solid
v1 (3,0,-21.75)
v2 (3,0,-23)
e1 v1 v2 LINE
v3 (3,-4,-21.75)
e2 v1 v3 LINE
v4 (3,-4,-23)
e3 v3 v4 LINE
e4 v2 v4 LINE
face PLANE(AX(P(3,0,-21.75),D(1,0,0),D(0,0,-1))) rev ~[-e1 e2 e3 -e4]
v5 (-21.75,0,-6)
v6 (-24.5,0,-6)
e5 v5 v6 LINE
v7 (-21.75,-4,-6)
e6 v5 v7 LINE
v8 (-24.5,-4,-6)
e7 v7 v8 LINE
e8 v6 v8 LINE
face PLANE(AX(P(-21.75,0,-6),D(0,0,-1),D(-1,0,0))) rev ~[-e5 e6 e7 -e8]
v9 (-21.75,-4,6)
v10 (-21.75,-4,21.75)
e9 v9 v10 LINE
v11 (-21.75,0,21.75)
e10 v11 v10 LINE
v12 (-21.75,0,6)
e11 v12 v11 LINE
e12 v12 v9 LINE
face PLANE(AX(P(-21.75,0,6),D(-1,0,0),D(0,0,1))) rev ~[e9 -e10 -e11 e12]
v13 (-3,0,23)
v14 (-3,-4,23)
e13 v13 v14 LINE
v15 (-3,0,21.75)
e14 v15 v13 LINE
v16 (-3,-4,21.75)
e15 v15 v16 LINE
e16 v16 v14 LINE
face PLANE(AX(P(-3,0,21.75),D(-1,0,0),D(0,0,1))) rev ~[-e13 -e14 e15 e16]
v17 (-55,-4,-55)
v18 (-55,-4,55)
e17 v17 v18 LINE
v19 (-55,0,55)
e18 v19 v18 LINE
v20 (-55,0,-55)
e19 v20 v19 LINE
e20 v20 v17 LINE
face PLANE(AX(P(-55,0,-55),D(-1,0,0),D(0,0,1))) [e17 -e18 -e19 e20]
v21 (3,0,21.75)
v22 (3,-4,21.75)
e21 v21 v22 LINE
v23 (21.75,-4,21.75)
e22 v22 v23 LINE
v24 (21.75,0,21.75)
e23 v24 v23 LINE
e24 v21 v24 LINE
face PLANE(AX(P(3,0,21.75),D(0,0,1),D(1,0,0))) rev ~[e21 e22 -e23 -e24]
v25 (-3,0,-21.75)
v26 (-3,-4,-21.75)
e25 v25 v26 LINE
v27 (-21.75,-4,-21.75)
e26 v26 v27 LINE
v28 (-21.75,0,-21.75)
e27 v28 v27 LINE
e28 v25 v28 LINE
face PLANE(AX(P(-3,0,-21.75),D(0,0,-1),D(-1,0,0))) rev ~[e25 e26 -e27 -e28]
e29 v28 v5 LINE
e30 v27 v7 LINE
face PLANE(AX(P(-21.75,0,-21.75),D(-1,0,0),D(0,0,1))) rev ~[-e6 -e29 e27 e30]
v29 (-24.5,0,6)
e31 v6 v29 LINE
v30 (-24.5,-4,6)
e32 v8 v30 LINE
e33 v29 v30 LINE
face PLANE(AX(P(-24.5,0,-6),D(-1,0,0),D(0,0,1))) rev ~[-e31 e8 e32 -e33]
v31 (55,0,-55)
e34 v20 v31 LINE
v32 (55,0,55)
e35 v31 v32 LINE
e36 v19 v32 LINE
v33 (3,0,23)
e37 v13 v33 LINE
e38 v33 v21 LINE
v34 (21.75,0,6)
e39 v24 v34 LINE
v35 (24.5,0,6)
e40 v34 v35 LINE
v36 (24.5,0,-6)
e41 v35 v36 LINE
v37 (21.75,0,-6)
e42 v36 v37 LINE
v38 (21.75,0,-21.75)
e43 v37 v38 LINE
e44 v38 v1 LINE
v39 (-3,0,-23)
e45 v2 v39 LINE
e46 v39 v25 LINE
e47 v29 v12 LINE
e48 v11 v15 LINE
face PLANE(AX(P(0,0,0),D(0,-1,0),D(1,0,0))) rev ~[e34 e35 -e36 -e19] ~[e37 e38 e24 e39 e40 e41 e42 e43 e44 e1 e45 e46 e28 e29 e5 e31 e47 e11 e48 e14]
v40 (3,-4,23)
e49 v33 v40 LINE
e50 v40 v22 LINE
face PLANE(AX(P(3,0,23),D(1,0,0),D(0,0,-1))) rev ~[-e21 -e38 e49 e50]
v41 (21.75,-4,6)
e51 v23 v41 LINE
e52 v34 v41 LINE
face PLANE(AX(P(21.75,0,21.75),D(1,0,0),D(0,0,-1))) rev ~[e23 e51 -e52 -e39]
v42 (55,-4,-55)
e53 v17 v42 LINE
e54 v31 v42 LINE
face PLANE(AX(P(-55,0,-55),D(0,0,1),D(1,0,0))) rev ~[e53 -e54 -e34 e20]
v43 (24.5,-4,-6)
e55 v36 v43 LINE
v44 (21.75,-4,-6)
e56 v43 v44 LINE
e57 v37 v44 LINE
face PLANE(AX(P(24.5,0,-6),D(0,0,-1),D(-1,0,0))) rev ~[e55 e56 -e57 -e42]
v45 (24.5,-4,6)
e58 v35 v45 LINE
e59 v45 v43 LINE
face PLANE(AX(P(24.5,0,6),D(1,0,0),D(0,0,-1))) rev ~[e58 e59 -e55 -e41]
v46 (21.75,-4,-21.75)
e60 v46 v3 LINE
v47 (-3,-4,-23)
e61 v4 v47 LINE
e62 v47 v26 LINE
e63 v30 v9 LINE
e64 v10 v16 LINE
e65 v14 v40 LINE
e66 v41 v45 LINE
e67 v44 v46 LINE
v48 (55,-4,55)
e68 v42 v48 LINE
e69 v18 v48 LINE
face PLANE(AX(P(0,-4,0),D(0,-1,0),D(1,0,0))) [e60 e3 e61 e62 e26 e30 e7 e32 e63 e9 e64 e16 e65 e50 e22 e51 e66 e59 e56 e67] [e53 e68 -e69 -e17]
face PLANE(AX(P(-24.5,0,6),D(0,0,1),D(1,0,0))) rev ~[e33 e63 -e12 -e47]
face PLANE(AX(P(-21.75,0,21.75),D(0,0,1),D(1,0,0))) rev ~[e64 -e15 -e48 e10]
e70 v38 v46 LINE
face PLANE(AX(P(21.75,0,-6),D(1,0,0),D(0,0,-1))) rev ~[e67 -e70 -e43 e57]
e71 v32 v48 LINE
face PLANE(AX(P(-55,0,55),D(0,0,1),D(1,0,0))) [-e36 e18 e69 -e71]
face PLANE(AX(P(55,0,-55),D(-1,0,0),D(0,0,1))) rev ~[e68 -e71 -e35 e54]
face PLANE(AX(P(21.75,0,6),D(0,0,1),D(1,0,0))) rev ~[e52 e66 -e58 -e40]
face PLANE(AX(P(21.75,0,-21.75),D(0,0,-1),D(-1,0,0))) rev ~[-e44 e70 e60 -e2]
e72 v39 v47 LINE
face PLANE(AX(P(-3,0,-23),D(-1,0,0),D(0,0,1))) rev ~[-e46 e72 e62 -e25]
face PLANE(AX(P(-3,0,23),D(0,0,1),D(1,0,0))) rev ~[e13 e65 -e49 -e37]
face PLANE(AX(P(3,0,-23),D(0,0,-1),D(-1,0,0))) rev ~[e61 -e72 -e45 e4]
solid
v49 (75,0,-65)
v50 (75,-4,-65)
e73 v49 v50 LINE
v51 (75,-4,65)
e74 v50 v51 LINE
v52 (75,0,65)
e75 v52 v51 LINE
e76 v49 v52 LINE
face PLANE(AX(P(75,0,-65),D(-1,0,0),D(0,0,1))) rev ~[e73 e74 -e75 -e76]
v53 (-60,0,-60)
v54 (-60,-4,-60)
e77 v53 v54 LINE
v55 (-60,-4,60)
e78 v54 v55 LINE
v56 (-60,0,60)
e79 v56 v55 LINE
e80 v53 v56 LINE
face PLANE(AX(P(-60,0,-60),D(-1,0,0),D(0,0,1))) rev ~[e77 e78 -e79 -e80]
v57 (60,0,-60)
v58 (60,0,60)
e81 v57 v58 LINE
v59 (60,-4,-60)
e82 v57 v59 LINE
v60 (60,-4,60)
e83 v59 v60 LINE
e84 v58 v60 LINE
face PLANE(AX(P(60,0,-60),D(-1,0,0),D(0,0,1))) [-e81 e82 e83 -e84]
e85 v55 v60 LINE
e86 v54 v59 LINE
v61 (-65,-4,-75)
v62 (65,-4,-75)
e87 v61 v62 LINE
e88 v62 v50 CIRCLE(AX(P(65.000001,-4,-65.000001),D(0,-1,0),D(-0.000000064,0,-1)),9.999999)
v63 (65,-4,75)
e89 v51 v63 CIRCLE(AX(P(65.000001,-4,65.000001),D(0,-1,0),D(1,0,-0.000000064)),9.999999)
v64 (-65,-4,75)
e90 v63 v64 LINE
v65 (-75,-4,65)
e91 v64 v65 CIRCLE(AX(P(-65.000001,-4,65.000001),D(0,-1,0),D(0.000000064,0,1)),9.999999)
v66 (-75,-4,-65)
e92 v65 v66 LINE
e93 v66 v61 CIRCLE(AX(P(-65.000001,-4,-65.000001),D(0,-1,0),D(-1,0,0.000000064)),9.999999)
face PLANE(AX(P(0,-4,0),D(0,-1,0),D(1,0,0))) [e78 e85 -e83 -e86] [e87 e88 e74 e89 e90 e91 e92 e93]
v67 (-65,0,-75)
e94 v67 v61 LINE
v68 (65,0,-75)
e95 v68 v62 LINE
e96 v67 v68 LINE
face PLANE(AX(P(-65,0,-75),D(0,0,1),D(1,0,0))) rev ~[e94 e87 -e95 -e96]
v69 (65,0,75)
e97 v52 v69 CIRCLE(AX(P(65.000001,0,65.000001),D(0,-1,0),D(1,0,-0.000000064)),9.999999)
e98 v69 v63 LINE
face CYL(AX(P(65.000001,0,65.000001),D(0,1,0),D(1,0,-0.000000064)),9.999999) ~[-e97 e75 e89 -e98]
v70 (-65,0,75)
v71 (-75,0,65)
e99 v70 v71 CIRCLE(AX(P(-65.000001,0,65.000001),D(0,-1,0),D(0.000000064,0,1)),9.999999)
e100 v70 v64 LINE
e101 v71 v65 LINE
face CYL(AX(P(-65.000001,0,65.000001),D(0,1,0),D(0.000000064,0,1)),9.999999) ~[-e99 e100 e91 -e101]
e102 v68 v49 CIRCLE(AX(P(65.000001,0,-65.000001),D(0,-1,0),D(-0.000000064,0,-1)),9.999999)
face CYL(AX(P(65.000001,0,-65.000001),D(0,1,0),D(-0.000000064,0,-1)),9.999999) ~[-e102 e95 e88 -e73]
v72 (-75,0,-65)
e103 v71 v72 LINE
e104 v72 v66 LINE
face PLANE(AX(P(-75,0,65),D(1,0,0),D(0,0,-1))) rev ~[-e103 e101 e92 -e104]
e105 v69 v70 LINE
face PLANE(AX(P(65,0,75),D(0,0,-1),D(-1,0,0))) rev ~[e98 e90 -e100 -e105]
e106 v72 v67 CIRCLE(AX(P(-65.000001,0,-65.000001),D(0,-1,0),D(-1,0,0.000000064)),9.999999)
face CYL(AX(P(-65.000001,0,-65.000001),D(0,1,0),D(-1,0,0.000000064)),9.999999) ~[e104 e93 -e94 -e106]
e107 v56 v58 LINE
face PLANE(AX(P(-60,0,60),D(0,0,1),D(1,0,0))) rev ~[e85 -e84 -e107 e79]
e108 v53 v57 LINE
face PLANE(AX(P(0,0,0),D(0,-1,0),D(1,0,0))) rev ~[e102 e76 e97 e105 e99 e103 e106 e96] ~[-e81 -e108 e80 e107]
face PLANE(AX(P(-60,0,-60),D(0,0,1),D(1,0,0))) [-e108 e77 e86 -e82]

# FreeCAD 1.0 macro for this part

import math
import FreeCAD as App
import Part
import Sketcher

doc = App.newDocument("Part")
body = doc.addObject("PartDesign::Body", "Body")
body.AllowCompound = True

sketch1 = body.newObject("Sketcher::SketchObject", "Sketch")
sketch1.AttachmentSupport = (doc.getObject("XZ_Plane"), [""])
sketch1.MapMode = "FlatFace"
sketch1.addGeometry([
    Part.LineSegment(App.Vector(-65, -75, 0), App.Vector(65, -75, 0)),
    Part.ArcOfCircle(Part.Circle(App.Vector(65, -65, 0), App.Vector(0, 0, 1), 10), math.radians(-90), math.radians(0)),
    Part.LineSegment(App.Vector(75, -65, 0), App.Vector(75, 65, 0)),
    Part.ArcOfCircle(Part.Circle(App.Vector(65, 65, 0), App.Vector(0, 0, 1), 10), math.radians(0), math.radians(90)),
    Part.LineSegment(App.Vector(65, 75, 0), App.Vector(-65, 75, 0)),
    Part.ArcOfCircle(Part.Circle(App.Vector(-65, 65, 0), App.Vector(0, 0, 1), 10), math.radians(90), math.radians(180)),
    Part.LineSegment(App.Vector(-75, 65, 0), App.Vector(-75, -65, 0)),
    Part.ArcOfCircle(Part.Circle(App.Vector(-65, -65, 0), App.Vector(0, 0, 1), 10), math.radians(180), math.radians(270)),
    Part.LineSegment(App.Vector(60, -60, 0), App.Vector(-60, -60, 0)),
    Part.LineSegment(App.Vector(-60, -60, 0), App.Vector(-60, 60, 0)),
    Part.LineSegment(App.Vector(-60, 60, 0), App.Vector(60, 60, 0)),
    Part.LineSegment(App.Vector(60, 60, 0), App.Vector(60, -60, 0)),
    Part.LineSegment(App.Vector(-55, 55, 0), App.Vector(-55, -55, 0)),
    Part.LineSegment(App.Vector(-55, -55, 0), App.Vector(55, -55, 0)),
    Part.LineSegment(App.Vector(55, -55, 0), App.Vector(55, 55, 0)),
    Part.LineSegment(App.Vector(55, 55, 0), App.Vector(-55, 55, 0)),
    Part.LineSegment(App.Vector(24.5, -6, 0), App.Vector(21.8, -6, 0)),
    Part.LineSegment(App.Vector(21.8, -6, 0), App.Vector(21.8, -21.8, 0)),
    Part.LineSegment(App.Vector(21.8, -21.8, 0), App.Vector(3, -21.8, 0)),
    Part.LineSegment(App.Vector(3, -21.8, 0), App.Vector(3, -23, 0)),
    Part.LineSegment(App.Vector(3, -23, 0), App.Vector(-3, -23, 0)),
    Part.LineSegment(App.Vector(-3, -23, 0), App.Vector(-3, -21.8, 0)),
    Part.LineSegment(App.Vector(-3, -21.8, 0), App.Vector(-21.8, -21.8, 0)),
    Part.LineSegment(App.Vector(-21.8, -21.8, 0), App.Vector(-21.8, -6, 0)),
    Part.LineSegment(App.Vector(-21.8, -6, 0), App.Vector(-24.5, -6, 0)),
    Part.LineSegment(App.Vector(-24.5, -6, 0), App.Vector(-24.5, 6, 0)),
    Part.LineSegment(App.Vector(-24.5, 6, 0), App.Vector(-21.8, 6, 0)),
    Part.LineSegment(App.Vector(-21.8, 6, 0), App.Vector(-21.8, 21.8, 0)),
    Part.LineSegment(App.Vector(-21.8, 21.8, 0), App.Vector(-3, 21.8, 0)),
    Part.LineSegment(App.Vector(-3, 21.8, 0), App.Vector(-3, 23, 0)),
    Part.LineSegment(App.Vector(-3, 23, 0), App.Vector(3, 23, 0)),
    Part.LineSegment(App.Vector(3, 23, 0), App.Vector(3, 21.8, 0)),
    Part.LineSegment(App.Vector(3, 21.8, 0), App.Vector(21.8, 21.8, 0)),
    Part.LineSegment(App.Vector(21.8, 21.8, 0), App.Vector(21.8, 6, 0)),
    Part.LineSegment(App.Vector(21.8, 6, 0), App.Vector(24.5, 6, 0)),
    Part.LineSegment(App.Vector(24.5, 6, 0), App.Vector(24.5, -6, 0)),
], False)
sketch1.addConstraint([
    Sketcher.Constraint("Tangent", 0, 2, 1, 1),
    Sketcher.Constraint("Tangent", 1, 2, 2, 1),
    Sketcher.Constraint("Tangent", 2, 2, 3, 1),
    Sketcher.Constraint("Tangent", 3, 2, 4, 1),
    Sketcher.Constraint("Tangent", 4, 2, 5, 1),
    Sketcher.Constraint("Tangent", 5, 2, 6, 1),
    Sketcher.Constraint("Tangent", 6, 2, 7, 1),
    Sketcher.Constraint("Tangent", 7, 2, 0, 1),
    Sketcher.Constraint("Coincident", 8, 2, 9, 1),
    Sketcher.Constraint("Coincident", 9, 2, 10, 1),
    Sketcher.Constraint("Coincident", 10, 2, 11, 1),
    Sketcher.Constraint("Coincident", 11, 2, 8, 1),
    Sketcher.Constraint("Coincident", 12, 2, 13, 1),
    Sketcher.Constraint("Coincident", 13, 2, 14, 1),
    Sketcher.Constraint("Coincident", 14, 2, 15, 1),
    Sketcher.Constraint("Coincident", 15, 2, 12, 1),
    Sketcher.Constraint("Coincident", 16, 2, 17, 1),
    Sketcher.Constraint("Coincident", 17, 2, 18, 1),
    Sketcher.Constraint("Coincident", 18, 2, 19, 1),
    Sketcher.Constraint("Coincident", 19, 2, 20, 1),
    Sketcher.Constraint("Coincident", 20, 2, 21, 1),
    Sketcher.Constraint("Coincident", 21, 2, 22, 1),
    Sketcher.Constraint("Coincident", 22, 2, 23, 1),
    Sketcher.Constraint("Coincident", 23, 2, 24, 1),
    Sketcher.Constraint("Coincident", 24, 2, 25, 1),
    Sketcher.Constraint("Coincident", 25, 2, 26, 1),
    Sketcher.Constraint("Coincident", 26, 2, 27, 1),
    Sketcher.Constraint("Coincident", 27, 2, 28, 1),
    Sketcher.Constraint("Coincident", 28, 2, 29, 1),
    Sketcher.Constraint("Coincident", 29, 2, 30, 1),
    Sketcher.Constraint("Coincident", 30, 2, 31, 1),
    Sketcher.Constraint("Coincident", 31, 2, 32, 1),
    Sketcher.Constraint("Coincident", 32, 2, 33, 1),
    Sketcher.Constraint("Coincident", 33, 2, 34, 1),
    Sketcher.Constraint("Coincident", 34, 2, 35, 1),
    Sketcher.Constraint("Coincident", 35, 2, 16, 1),
    Sketcher.Constraint("Horizontal", 0),
    Sketcher.Constraint("Vertical", 2),
    Sketcher.Constraint("Horizontal", 4),
    Sketcher.Constraint("Vertical", 6),
    Sketcher.Constraint("Horizontal", 8),
    Sketcher.Constraint("Vertical", 9),
    Sketcher.Constraint("Horizontal", 10),
    Sketcher.Constraint("Vertical", 11),
    Sketcher.Constraint("Vertical", 12),
    Sketcher.Constraint("Horizontal", 13),
    Sketcher.Constraint("Vertical", 14),
    Sketcher.Constraint("Horizontal", 15),
    Sketcher.Constraint("Horizontal", 16),
    Sketcher.Constraint("Vertical", 17),
    Sketcher.Constraint("Horizontal", 18),
    Sketcher.Constraint("Vertical", 19),
    Sketcher.Constraint("Horizontal", 20),
    Sketcher.Constraint("Vertical", 21),
    Sketcher.Constraint("Horizontal", 22),
    Sketcher.Constraint("Vertical", 23),
    Sketcher.Constraint("Horizontal", 24),
    Sketcher.Constraint("Vertical", 25),
    Sketcher.Constraint("Horizontal", 26),
    Sketcher.Constraint("Vertical", 27),
    Sketcher.Constraint("Horizontal", 28),
    Sketcher.Constraint("Vertical", 29),
    Sketcher.Constraint("Horizontal", 30),
    Sketcher.Constraint("Vertical", 31),
    Sketcher.Constraint("Horizontal", 32),
    Sketcher.Constraint("Vertical", 33),
    Sketcher.Constraint("Horizontal", 34),
    Sketcher.Constraint("Vertical", 35),
    Sketcher.Constraint("Equal", 1, 3),
    Sketcher.Constraint("Equal", 3, 5),
    Sketcher.Constraint("Equal", 5, 7),
    Sketcher.Constraint("Symmetric", 1, 3, 5, 3, -1, 1),
    Sketcher.Constraint("Symmetric", 8, 2, 10, 2, -1, 1),
    Sketcher.Constraint("Symmetric", 12, 2, 14, 2, -1, 1),
    Sketcher.Constraint("Symmetric", 16, 2, 26, 2, -1, 1),
    Sketcher.Constraint("Symmetric", 18, 2, 28, 2, -1, 1),
    Sketcher.Constraint("Symmetric", 20, 2, 30, 2, -1, 1),
    Sketcher.Constraint("Symmetric", 22, 2, 32, 2, -1, 1),
    Sketcher.Constraint("Symmetric", 24, 2, 34, 2, -1, 1),
    Sketcher.Constraint("Symmetric", 18, 2, 21, 2, -2),
    Sketcher.Constraint("Symmetric", 16, 2, 23, 2, -2),
    Sketcher.Constraint("Equal", 4, 2),
    Sketcher.Constraint("Equal", 10, 9),
    Sketcher.Constraint("Equal", 15, 12),
    Sketcher.Constraint("Radius", 1, 9.999999),
    Sketcher.Constraint("DistanceX", 0, 1, 0, 2, 130.0),
    Sketcher.Constraint("DistanceX", 8, 2, 8, 1, 120.0),
    Sketcher.Constraint("DistanceX", 13, 1, 13, 2, 110.0),
    Sketcher.Constraint("DistanceX", 20, 2, 20, 1, 6.0),
    Sketcher.Constraint("DistanceY", 25, 1, 25, 2, 12.0),
    Sketcher.Constraint("DistanceY", 19, 2, -1, 1, 23.0),
    Sketcher.Constraint("DistanceX", 16, 2, 16, 1, 2.75),
    Sketcher.Constraint("DistanceX", 18, 2, 18, 1, 18.75),
    Sketcher.Constraint("DistanceY", 17, 2, 17, 1, 15.75),
])
pad1 = body.newObject("PartDesign::Pad", "Pad")
pad1.Profile = sketch1
pad1.Length = 4

doc.recompute()
